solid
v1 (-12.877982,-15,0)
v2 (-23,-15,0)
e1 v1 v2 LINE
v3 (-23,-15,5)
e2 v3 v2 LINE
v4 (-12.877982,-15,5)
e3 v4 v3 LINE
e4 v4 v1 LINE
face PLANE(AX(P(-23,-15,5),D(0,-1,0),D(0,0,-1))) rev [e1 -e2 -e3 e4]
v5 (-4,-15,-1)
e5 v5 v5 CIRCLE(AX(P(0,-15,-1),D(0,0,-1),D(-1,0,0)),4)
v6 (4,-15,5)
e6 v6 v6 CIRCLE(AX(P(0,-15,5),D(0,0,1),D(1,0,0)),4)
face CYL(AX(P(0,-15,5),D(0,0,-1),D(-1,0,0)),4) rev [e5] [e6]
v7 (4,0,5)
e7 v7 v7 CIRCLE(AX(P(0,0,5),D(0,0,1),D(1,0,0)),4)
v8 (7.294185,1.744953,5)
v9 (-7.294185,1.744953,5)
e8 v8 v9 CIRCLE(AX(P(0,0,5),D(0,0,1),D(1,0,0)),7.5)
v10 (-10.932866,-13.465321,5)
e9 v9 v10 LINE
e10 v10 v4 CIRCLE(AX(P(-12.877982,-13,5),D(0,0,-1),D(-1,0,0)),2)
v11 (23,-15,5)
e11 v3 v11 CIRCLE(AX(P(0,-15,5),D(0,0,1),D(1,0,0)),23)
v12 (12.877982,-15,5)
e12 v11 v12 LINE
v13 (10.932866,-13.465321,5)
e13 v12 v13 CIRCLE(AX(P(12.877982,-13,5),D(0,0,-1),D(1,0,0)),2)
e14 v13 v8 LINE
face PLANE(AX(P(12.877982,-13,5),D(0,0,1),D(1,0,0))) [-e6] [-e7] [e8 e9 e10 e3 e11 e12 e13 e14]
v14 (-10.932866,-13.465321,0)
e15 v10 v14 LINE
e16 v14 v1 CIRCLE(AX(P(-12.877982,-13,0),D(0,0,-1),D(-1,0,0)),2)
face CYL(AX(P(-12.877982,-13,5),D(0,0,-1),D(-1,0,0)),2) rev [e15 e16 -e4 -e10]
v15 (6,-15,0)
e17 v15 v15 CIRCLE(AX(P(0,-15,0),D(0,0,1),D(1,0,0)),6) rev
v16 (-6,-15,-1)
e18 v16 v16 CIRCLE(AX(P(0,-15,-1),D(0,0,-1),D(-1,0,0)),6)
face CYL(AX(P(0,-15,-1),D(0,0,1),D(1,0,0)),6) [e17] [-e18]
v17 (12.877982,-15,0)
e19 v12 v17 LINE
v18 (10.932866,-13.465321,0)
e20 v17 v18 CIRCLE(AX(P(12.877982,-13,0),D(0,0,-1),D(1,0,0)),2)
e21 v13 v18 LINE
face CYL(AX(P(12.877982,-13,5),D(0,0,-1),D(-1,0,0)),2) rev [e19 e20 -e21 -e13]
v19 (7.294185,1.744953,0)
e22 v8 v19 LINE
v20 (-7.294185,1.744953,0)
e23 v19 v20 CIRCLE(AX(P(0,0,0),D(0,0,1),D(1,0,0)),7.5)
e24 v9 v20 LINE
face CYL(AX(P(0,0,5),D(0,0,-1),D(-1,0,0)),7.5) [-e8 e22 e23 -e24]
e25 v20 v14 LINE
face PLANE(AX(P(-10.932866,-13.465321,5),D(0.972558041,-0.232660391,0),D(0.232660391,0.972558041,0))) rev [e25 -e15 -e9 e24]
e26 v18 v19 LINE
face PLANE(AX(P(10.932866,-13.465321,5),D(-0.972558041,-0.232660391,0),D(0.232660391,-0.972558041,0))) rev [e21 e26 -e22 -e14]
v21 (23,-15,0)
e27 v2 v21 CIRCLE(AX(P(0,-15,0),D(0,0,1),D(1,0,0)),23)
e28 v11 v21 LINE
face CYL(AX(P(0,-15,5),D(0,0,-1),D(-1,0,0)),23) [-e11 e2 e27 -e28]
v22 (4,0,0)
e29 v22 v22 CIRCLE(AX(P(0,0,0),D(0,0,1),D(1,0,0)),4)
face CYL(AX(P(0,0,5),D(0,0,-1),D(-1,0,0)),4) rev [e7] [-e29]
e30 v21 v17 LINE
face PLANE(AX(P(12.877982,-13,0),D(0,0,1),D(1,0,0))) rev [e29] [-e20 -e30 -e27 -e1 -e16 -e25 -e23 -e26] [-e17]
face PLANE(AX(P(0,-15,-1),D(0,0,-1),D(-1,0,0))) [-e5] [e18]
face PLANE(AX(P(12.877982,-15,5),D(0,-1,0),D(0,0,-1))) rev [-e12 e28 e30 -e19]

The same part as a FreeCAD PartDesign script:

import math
import FreeCAD as App
import Part
import Sketcher

doc = App.newDocument("Part")
body = doc.addObject("PartDesign::Body", "Body")

sketch1 = body.newObject("Sketcher::SketchObject", "Sketch")
sketch1.AttachmentSupport = (doc.getObject("XY_Plane"), [""])
sketch1.MapMode = "FlatFace"
sketch1.addGeometry(Part.LineSegment(App.Vector(-12.9, -15, 0), App.Vector(-23, -15, 0)), False)
sketch1.addGeometry(Part.ArcOfCircle(Part.Circle(App.Vector(0, -15, 0), App.Vector(0, 0, 1), 23), math.radians(180), math.radians(360)), False)
sketch1.addGeometry(Part.LineSegment(App.Vector(23, -15, 0), App.Vector(12.9, -15, 0)), False)
sketch1.addGeometry(Part.ArcOfCircle(Part.Circle(App.Vector(12.9, -13, 0), App.Vector(0, 0, 1), 2), math.radians(-167), math.radians(-90)), False)
sketch1.addGeometry(Part.LineSegment(App.Vector(10.9, -13.5, 0), App.Vector(7.3, 1.7, 0)), False)
sketch1.addGeometry(Part.ArcOfCircle(Part.Circle(App.Vector(0, 0, 0), App.Vector(0, 0, 1), 7.5), math.radians(13), math.radians(167)), False)
sketch1.addGeometry(Part.LineSegment(App.Vector(-7.3, 1.7, 0), App.Vector(-10.9, -13.5, 0)), False)
sketch1.addGeometry(Part.ArcOfCircle(Part.Circle(App.Vector(-12.9, -13, 0), App.Vector(0, 0, 1), 2), math.radians(-90), math.radians(-13)), False)
sketch1.addGeometry(Part.Circle(App.Vector(0, -15, 0), App.Vector(0, 0, 1), 4), False)
sketch1.addGeometry(Part.Circle(App.Vector(0, 0, 0), App.Vector(0, 0, 1), 4), False)
sketch1.addConstraint(Sketcher.Constraint("Coincident", 0, 2, 1, 1))
sketch1.addConstraint(Sketcher.Constraint("Coincident", 1, 2, 2, 1))
sketch1.addConstraint(Sketcher.Constraint("Tangent", 2, 2, 3, 2))
sketch1.addConstraint(Sketcher.Constraint("Tangent", 3, 1, 4, 1))
sketch1.addConstraint(Sketcher.Constraint("Tangent", 4, 2, 5, 1))
sketch1.addConstraint(Sketcher.Constraint("Tangent", 5, 2, 6, 1))
sketch1.addConstraint(Sketcher.Constraint("Tangent", 6, 2, 7, 2))
sketch1.addConstraint(Sketcher.Constraint("Tangent", 7, 1, 0, 1))
sketch1.addConstraint(Sketcher.Constraint("Horizontal", 0))
sketch1.addConstraint(Sketcher.Constraint("Horizontal", 2))
sketch1.addConstraint(Sketcher.Constraint("Coincident", 5, 3, -1, 1))
sketch1.addConstraint(Sketcher.Constraint("Coincident", 9, 3, -1, 1))
sketch1.addConstraint(Sketcher.Constraint("Coincident", 8, 3, 1, 3))
sketch1.addConstraint(Sketcher.Constraint("Equal", 3, 7))
sketch1.addConstraint(Sketcher.Constraint("Equal", 8, 9))
sketch1.addConstraint(Sketcher.Constraint("Symmetric", 3, 3, 7, 3, -2))
sketch1.addConstraint(Sketcher.Constraint("PointOnObject", 1, 3, -2))
sketch1.addConstraint(Sketcher.Constraint("Horizontal", 8, 3, 0, 2))
sketch1.addConstraint(Sketcher.Constraint("Diameter", 8, 8.0))
sketch1.addConstraint(Sketcher.Constraint("Radius", 1, 23.0))
sketch1.addConstraint(Sketcher.Constraint("Radius", 3, 2.0))
sketch1.addConstraint(Sketcher.Constraint("Radius", 5, 7.5))
sketch1.addConstraint(Sketcher.Constraint("DistanceY", 1, 3, -1, 1, 15.0))
sketch1.addConstraint(Sketcher.Constraint("Distance", 4, 15.639451))
pad1 = body.newObject("PartDesign::Pad", "Pad")
pad1.Profile = sketch1
pad1.Length = 5

sketch2 = body.newObject("Sketcher::SketchObject", "Sketch001")
sketch2.AttachmentSupport = (doc.getObject("XY_Plane"), [""])
sketch2.MapMode = "FlatFace"
sketch2.AttachmentOffset = App.Placement(App.Vector(0, 0, -1), App.Rotation())
sketch2.addGeometry(Part.Circle(App.Vector(0, -15, 0), App.Vector(0, 0, 1), 6), False)
sketch2.addGeometry(Part.Circle(App.Vector(0, -15, 0), App.Vector(0, 0, 1), 4), False)
sketch2.addConstraint(Sketcher.Constraint("Coincident", 1, 3, 0, 3))
sketch2.addConstraint(Sketcher.Constraint("PointOnObject", 0, 3, -2))
sketch2.addConstraint(Sketcher.Constraint("Diameter", 0, 12.0))
sketch2.addConstraint(Sketcher.Constraint("Diameter", 1, 8.0))
sketch2.addConstraint(Sketcher.Constraint("DistanceY", 0, 3, -1, 1, 15.0))
pad2 = body.newObject("PartDesign::Pad", "Pad001")
pad2.Profile = sketch2
pad2.Length = 1

doc.recompute()
